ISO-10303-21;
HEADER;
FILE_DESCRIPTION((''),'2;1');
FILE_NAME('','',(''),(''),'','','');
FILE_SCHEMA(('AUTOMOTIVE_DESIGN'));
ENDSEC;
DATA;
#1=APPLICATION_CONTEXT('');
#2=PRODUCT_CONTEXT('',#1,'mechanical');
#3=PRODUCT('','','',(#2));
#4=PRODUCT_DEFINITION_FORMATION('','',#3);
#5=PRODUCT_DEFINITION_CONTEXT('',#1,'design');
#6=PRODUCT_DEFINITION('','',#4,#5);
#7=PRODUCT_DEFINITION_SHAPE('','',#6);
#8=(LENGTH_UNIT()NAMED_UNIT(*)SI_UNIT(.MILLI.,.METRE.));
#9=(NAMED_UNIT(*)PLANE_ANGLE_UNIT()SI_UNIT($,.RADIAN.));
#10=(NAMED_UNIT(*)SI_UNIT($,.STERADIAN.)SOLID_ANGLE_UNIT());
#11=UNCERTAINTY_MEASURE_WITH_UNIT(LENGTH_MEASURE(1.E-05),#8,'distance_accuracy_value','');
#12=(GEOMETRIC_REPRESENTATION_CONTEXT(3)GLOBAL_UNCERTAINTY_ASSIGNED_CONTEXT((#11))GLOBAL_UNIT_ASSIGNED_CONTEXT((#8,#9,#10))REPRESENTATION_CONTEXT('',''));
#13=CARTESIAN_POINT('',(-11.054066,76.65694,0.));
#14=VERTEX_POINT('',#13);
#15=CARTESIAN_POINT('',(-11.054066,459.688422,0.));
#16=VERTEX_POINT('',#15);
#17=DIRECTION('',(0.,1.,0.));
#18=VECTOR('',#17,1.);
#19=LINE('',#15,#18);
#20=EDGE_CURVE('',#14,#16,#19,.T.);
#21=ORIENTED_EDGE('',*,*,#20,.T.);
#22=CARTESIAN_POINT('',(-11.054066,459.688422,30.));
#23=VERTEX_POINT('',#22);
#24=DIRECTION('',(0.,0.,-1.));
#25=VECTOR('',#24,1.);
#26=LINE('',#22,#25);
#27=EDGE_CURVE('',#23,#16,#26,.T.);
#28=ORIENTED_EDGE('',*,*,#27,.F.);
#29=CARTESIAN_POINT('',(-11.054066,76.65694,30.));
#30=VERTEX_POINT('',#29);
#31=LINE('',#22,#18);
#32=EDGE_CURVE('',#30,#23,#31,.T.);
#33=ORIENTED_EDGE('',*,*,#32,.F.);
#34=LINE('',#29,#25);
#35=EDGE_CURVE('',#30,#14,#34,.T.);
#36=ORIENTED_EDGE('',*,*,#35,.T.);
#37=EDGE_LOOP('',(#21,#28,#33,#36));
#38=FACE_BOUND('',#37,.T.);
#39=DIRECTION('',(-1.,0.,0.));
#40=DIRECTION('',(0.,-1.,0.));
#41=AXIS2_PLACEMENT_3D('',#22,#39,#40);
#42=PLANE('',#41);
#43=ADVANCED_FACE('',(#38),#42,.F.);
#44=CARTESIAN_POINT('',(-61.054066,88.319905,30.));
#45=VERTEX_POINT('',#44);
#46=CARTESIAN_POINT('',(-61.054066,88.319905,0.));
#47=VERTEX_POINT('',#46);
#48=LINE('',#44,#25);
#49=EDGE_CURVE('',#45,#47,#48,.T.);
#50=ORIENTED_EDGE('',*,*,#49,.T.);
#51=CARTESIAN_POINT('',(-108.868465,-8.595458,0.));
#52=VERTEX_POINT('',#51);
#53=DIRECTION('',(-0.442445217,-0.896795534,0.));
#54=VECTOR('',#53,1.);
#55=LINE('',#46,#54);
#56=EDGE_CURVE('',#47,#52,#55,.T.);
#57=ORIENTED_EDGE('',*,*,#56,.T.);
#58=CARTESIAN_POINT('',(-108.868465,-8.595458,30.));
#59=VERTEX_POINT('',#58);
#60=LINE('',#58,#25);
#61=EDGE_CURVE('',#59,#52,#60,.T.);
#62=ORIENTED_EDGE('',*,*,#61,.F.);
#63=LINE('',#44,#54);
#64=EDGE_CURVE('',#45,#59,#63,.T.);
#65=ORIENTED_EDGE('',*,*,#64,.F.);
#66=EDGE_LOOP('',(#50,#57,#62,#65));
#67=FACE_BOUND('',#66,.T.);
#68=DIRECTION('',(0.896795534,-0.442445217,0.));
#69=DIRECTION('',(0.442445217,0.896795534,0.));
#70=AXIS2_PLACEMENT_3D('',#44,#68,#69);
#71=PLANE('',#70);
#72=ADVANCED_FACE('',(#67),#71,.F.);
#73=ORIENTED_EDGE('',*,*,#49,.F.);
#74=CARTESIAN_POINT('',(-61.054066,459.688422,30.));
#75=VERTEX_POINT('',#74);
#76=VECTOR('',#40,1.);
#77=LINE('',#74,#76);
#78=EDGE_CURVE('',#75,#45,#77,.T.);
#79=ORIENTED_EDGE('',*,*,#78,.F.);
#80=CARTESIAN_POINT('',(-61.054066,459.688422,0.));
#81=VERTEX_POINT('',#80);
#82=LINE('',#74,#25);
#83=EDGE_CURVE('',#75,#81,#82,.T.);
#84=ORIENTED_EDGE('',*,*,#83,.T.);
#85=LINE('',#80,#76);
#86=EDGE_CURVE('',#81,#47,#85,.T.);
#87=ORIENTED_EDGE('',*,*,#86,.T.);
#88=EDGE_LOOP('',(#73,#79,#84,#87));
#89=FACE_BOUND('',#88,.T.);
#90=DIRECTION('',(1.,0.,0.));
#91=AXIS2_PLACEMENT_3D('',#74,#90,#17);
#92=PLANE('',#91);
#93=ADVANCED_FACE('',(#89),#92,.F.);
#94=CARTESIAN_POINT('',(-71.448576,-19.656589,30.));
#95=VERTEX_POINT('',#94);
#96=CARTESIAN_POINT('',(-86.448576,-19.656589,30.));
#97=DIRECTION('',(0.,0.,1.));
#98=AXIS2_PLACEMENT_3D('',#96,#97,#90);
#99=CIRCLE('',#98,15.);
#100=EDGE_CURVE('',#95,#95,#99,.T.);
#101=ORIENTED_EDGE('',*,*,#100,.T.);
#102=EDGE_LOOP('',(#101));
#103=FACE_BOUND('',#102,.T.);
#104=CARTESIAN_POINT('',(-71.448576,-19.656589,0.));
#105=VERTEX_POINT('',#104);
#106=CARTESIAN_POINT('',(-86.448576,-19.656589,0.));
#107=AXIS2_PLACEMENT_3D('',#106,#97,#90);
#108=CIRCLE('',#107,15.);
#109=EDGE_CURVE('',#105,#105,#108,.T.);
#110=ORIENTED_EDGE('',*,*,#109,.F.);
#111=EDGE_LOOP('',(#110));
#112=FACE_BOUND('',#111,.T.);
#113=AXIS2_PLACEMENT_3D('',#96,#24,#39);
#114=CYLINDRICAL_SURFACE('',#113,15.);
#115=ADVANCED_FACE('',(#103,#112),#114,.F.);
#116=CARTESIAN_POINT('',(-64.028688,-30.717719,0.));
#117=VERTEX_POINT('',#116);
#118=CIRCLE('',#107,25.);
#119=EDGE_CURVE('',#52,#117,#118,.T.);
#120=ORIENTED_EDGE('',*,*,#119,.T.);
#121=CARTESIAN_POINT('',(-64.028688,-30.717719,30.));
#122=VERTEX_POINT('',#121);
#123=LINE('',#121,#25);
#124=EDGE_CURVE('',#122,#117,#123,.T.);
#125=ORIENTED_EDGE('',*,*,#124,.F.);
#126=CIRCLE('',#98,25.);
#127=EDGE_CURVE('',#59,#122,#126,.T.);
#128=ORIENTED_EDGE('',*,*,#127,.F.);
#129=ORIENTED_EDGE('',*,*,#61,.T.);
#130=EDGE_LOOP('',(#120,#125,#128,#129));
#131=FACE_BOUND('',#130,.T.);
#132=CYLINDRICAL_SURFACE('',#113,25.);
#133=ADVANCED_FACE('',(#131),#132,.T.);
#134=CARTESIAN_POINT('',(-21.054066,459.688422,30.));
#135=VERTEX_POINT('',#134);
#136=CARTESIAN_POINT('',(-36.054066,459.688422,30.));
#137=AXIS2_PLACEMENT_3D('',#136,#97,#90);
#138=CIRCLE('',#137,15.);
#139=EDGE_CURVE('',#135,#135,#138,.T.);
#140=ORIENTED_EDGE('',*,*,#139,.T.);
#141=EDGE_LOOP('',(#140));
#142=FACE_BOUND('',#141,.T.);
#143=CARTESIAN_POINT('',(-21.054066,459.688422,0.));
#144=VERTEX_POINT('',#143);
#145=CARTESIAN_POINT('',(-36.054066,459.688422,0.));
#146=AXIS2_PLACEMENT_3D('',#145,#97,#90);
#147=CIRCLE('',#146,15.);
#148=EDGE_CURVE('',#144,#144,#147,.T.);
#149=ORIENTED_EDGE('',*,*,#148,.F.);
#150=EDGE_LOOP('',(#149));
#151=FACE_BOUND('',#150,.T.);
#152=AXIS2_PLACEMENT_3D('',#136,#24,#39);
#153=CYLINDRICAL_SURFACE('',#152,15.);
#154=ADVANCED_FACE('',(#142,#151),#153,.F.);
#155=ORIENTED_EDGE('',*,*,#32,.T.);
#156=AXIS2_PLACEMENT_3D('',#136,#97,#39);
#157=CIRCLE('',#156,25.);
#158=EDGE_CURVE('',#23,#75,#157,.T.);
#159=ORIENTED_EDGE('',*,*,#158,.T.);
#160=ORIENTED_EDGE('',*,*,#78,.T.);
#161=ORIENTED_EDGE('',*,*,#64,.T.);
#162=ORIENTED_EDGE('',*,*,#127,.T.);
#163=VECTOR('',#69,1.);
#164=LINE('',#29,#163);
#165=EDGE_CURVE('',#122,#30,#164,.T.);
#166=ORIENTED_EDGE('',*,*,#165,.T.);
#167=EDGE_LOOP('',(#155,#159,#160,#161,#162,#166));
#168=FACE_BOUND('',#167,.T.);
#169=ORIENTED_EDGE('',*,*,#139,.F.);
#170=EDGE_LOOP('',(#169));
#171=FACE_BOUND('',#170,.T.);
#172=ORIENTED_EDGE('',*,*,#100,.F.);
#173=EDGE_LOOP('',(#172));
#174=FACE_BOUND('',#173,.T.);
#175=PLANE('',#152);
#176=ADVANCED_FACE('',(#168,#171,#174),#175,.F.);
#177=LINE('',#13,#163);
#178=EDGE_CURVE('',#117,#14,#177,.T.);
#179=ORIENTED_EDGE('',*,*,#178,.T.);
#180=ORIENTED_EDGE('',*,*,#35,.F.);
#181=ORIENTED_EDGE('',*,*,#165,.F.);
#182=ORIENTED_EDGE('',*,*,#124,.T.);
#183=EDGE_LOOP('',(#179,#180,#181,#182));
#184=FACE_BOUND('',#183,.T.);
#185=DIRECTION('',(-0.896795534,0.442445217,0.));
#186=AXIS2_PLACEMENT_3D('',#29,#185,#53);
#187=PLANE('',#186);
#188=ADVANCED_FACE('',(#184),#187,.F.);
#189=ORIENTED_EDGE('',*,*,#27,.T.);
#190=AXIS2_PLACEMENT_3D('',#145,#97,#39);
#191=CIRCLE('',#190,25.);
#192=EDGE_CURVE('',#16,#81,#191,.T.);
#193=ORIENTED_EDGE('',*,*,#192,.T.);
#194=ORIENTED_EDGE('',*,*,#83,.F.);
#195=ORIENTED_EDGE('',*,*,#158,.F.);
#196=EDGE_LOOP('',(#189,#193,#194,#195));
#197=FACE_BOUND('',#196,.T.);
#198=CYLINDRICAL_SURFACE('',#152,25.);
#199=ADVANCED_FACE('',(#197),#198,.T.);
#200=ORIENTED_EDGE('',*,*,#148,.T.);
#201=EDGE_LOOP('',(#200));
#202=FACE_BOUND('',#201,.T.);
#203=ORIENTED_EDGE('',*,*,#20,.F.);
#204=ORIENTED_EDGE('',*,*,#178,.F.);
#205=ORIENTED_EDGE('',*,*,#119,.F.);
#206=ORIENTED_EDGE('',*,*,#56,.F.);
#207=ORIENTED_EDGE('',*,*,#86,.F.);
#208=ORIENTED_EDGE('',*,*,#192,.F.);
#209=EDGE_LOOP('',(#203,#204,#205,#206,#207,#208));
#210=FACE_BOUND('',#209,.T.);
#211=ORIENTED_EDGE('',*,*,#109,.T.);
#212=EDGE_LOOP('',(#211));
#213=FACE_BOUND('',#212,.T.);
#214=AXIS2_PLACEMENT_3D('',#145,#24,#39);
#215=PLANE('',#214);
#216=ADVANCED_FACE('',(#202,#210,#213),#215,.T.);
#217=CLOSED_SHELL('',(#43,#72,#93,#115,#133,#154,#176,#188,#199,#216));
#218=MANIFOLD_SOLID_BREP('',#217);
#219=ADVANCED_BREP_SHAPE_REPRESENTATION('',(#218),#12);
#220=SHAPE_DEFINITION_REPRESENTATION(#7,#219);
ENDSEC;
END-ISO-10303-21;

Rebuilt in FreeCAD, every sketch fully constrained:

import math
import FreeCAD as App
import Part
import Sketcher

V = App.Vector
Q = App.Units.Quantity

doc = App.newDocument("Part")
body = doc.addObject("PartDesign::Body", "Body")

sketch1 = body.newObject("Sketcher::SketchObject", "Sketch")
sketch1.AttachmentSupport = (doc.getObject("XY_Plane"), [""])
sketch1.MapMode = "FlatFace"
sketch1.addGeometry([
    Part.LineSegment(V(-61.054066, 459.688422, 0), V(-61.054066, 88.319905, 0)),
    Part.LineSegment(V(-61.054066, 88.319905, 0), V(-108.868465, -8.595458, 0)),
    Part.ArcOfCircle(Part.Circle(V(-86.448576, -19.656589, 0), V(0, 0, 1), 25), math.radians(153.74), math.radians(333.74)),
    Part.LineSegment(V(-64.028688, -30.717719, 0), V(-11.054066, 76.65694, 0)),
    Part.LineSegment(V(-11.054066, 76.65694, 0), V(-11.054066, 459.688422, 0)),
    Part.ArcOfCircle(Part.Circle(V(-36.054066, 459.688422, 0), V(0, 0, 1), 25), math.radians(0), math.radians(180)),
    Part.Circle(V(-86.448576, -19.656589, 0), V(0, 0, 1), 15),
    Part.Circle(V(-36.054066, 459.688422, 0), V(0, 0, 1), 15),
], False)
sketch1.addConstraint([
    Sketcher.Constraint("Coincident", 0, 2, 1, 1),
    Sketcher.Constraint("Tangent", 1, 2, 2, 1),
    Sketcher.Constraint("Tangent", 2, 2, 3, 1),
    Sketcher.Constraint("Coincident", 3, 2, 4, 1),
    Sketcher.Constraint("Tangent", 4, 2, 5, 1),
    Sketcher.Constraint("Tangent", 5, 2, 0, 1),
    Sketcher.Constraint("Vertical", 0),
    Sketcher.Constraint("Vertical", 4),
    Sketcher.Constraint("Coincident", 6, 3, 2, 3),
    Sketcher.Constraint("Coincident", 7, 3, 5, 3),
    Sketcher.Constraint("Equal", 2, 5),
    Sketcher.Constraint("Equal", 6, 7),
    Sketcher.Constraint("Parallel", 1, 3),
    Sketcher.Constraint("Diameter", 6, 30.0),
    Sketcher.Constraint("Radius", 2, 25.0),
    Sketcher.Constraint("Angle", 1, Q("-116.26 deg")),
    Sketcher.Constraint("DistanceX", 1, 2, 0, 2, 47.814399),
    Sketcher.Constraint("DistanceY", 0, 2, 0, 1, 371.368517),
    Sketcher.Constraint("DistanceY", 2, 3, -1, 1, 19.656589),
    Sketcher.Constraint("DistanceX", 2, 3, -1, 1, 86.448576),
])
pad1 = body.newObject("PartDesign::Pad", "Pad")
pad1.Profile = sketch1
pad1.Length = 30

doc.recompute()
